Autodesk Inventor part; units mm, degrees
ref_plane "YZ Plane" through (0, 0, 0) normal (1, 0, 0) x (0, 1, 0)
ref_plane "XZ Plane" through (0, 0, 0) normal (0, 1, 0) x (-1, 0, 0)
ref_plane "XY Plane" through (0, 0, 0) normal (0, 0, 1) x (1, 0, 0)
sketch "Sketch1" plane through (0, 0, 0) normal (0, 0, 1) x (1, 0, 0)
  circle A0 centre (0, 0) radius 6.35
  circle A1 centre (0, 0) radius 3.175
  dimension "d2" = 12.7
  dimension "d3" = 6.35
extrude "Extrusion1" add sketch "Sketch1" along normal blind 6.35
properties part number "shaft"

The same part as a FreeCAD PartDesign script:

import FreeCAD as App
import Part
import Sketcher

V = App.Vector
Q = App.Units.Quantity

doc = App.newDocument("Part")
params = doc.addObject("Spreadsheet::Sheet", "Params")
for row, (alias, value) in enumerate([
    ("sketch1_diameter", "0.5 in"),
    ("sketch1_diameter2", "0.25 in"),
    ("pad1_length", "0.25 in"),
], start=1):
    params.set(f"A{row}", alias)
    params.set(f"B{row}", "=" + value)
    params.setAlias(f"B{row}", alias)

body = doc.addObject("PartDesign::Body", "Body")

# Sketch on XY plane
sketch1 = body.newObject("Sketcher::SketchObject", "Sketch")
sketch1.AttachmentSupport = (doc.getObject("XY_Plane"), [""])
sketch1.MapMode = "FlatFace"
sketch1.addGeometry([
    Part.Circle(V(0, 0, 0), V(0, 0, 1), 6.3),
    Part.Circle(V(0, 0, 0), V(0, 0, 1), 3.2),
], False)
sketch1.addConstraint([
    Sketcher.Constraint("Coincident", 0, 3, -1, 1),
    Sketcher.Constraint("Coincident", 1, 3, -1, 1),
    Sketcher.Constraint("Diameter", 0, Q("0.5 in")),
    Sketcher.Constraint("Diameter", 1, Q("0.25 in")),
])
sketch1.setExpression("Constraints[2]", "Params.sketch1_diameter")
sketch1.setExpression("Constraints[3]", "Params.sketch1_diameter2")
pad1 = body.newObject("PartDesign::Pad", "Pad")
pad1.Profile = sketch1
pad1.setExpression("Length", "Params.pad1_length")

doc.recompute()
